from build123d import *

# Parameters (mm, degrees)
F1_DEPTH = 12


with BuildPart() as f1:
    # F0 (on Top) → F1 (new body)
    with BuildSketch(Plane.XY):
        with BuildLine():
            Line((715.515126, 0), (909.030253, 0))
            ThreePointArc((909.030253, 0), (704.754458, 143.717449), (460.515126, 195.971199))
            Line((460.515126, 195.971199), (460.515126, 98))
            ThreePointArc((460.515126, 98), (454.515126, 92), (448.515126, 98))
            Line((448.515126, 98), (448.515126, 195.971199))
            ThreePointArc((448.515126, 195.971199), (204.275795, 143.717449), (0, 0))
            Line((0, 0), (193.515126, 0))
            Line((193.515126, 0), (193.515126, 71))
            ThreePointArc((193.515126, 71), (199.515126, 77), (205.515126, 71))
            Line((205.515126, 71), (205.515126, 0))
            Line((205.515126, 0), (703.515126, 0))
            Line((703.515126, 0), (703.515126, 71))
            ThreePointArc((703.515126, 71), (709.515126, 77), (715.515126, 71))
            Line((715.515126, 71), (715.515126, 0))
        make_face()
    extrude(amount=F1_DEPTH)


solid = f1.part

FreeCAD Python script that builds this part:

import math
import FreeCAD as App
import Part
import Sketcher
from FreeCAD import Vector

doc = App.newDocument("Part")
body = doc.addObject("PartDesign::Body", "Body")

sketch1 = body.newObject("Sketcher::SketchObject", "Sketch")
sketch1.AttachmentSupport = (doc.getObject("XY_Plane"), [""])
sketch1.MapMode = "FlatFace"
sketch1.addGeometry([
    Part.LineSegment(Vector(715.515126, 0, 0), Vector(909.030253, 0, 0)),
    Part.ArcOfCircle(Part.Circle(Vector(454.515125, -429.000005, 0), Vector(0, 0, 1), 625.000004), math.radians(43.345809), math.radians(89.449952)),
    Part.LineSegment(Vector(460.515126, 195.971199, 0), Vector(460.515126, 98, 0)),
    Part.ArcOfCircle(Part.Circle(Vector(454.515126, 98, 0), Vector(0, 0, 1), 6), math.radians(180), math.radians(360)),
    Part.LineSegment(Vector(448.515126, 98, 0), Vector(448.515126, 195.971199, 0)),
    Part.ArcOfCircle(Part.Circle(Vector(454.515128, -429.000005, 0), Vector(0, 0, 1), 625.000004), math.radians(90.550048), math.radians(136.654191)),
    Part.LineSegment(Vector(0, 0, 0), Vector(193.515126, 0, 0)),
    Part.LineSegment(Vector(193.515126, 0, 0), Vector(193.515126, 71, 0)),
    Part.ArcOfCircle(Part.Circle(Vector(199.515126, 71, 0), Vector(0, 0, 1), 6), math.radians(0), math.radians(180)),
    Part.LineSegment(Vector(205.515126, 71, 0), Vector(205.515126, 0, 0)),
    Part.LineSegment(Vector(205.515126, 0, 0), Vector(703.515126, 0, 0)),
    Part.LineSegment(Vector(703.515126, 0, 0), Vector(703.515126, 71, 0)),
    Part.ArcOfCircle(Part.Circle(Vector(709.515126, 71, 0), Vector(0, 0, 1), 6), math.radians(0), math.radians(180)),
    Part.LineSegment(Vector(715.515126, 71, 0), Vector(715.515126, 0, 0)),
], False)
sketch1.addConstraint([
    Sketcher.Constraint("Coincident", 0, 2, 1, 1),
    Sketcher.Constraint("Coincident", 1, 2, 2, 1),
    Sketcher.Constraint("Tangent", 2, 2, 3, 2),
    Sketcher.Constraint("Tangent", 3, 1, 4, 1),
    Sketcher.Constraint("Coincident", 4, 2, 5, 1),
    Sketcher.Constraint("Coincident", 5, 2, 6, 1),
    Sketcher.Constraint("Coincident", 6, 2, 7, 1),
    Sketcher.Constraint("Tangent", 7, 2, 8, 2),
    Sketcher.Constraint("Tangent", 8, 1, 9, 1),
    Sketcher.Constraint("Coincident", 9, 2, 10, 1),
    Sketcher.Constraint("Coincident", 10, 2, 11, 1),
    Sketcher.Constraint("Tangent", 11, 2, 12, 2),
    Sketcher.Constraint("Tangent", 12, 1, 13, 1),
    Sketcher.Constraint("Coincident", 13, 2, 0, 1),
    Sketcher.Constraint("Horizontal", 0),
    Sketcher.Constraint("Vertical", 2),
    Sketcher.Constraint("Vertical", 4),
    Sketcher.Constraint("Horizontal", 6),
    Sketcher.Constraint("Vertical", 7),
    Sketcher.Constraint("Vertical", 9),
    Sketcher.Constraint("Horizontal", 10),
    Sketcher.Constraint("Vertical", 11),
    Sketcher.Constraint("Vertical", 13),
    Sketcher.Constraint("Coincident", 5, 3, 1, 3),
    Sketcher.Constraint("Equal", 1, 5),
    Sketcher.Constraint("Equal", 3, 8),
    Sketcher.Constraint("Equal", 8, 12),
    Sketcher.Constraint("PointOnObject", 0, 2, -1),
    Sketcher.Constraint("PointOnObject", 6, 2, -1),
    Sketcher.Constraint("PointOnObject", 9, 2, -1),
    Sketcher.Constraint("Horizontal", 8, 3, 12, 3),
    Sketcher.Constraint("Horizontal", 1, 2, 4, 2),
    Sketcher.Constraint("Equal", 0, 6),
    Sketcher.Constraint("Radius", 3, 6.0),
    Sketcher.Constraint("DistanceX", 10, 1, 10, 2, 498.0),
    Sketcher.Constraint("DistanceY", 7, 1, 7, 2, 71.0),
    Sketcher.Constraint("DistanceY", -1, 1, 3, 3, 98.0),
    Sketcher.Constraint("DistanceY", 2, 2, 2, 1, 97.971199),
    Sketcher.Constraint("Radius", 1, 625.000004),
    Sketcher.Constraint("DistanceX", -1, 1, 1, 3, 454.515125),
])
pad1 = body.newObject("PartDesign::Pad", "Pad")
pad1.Profile = sketch1
pad1.Length = 12

doc.recompute()
